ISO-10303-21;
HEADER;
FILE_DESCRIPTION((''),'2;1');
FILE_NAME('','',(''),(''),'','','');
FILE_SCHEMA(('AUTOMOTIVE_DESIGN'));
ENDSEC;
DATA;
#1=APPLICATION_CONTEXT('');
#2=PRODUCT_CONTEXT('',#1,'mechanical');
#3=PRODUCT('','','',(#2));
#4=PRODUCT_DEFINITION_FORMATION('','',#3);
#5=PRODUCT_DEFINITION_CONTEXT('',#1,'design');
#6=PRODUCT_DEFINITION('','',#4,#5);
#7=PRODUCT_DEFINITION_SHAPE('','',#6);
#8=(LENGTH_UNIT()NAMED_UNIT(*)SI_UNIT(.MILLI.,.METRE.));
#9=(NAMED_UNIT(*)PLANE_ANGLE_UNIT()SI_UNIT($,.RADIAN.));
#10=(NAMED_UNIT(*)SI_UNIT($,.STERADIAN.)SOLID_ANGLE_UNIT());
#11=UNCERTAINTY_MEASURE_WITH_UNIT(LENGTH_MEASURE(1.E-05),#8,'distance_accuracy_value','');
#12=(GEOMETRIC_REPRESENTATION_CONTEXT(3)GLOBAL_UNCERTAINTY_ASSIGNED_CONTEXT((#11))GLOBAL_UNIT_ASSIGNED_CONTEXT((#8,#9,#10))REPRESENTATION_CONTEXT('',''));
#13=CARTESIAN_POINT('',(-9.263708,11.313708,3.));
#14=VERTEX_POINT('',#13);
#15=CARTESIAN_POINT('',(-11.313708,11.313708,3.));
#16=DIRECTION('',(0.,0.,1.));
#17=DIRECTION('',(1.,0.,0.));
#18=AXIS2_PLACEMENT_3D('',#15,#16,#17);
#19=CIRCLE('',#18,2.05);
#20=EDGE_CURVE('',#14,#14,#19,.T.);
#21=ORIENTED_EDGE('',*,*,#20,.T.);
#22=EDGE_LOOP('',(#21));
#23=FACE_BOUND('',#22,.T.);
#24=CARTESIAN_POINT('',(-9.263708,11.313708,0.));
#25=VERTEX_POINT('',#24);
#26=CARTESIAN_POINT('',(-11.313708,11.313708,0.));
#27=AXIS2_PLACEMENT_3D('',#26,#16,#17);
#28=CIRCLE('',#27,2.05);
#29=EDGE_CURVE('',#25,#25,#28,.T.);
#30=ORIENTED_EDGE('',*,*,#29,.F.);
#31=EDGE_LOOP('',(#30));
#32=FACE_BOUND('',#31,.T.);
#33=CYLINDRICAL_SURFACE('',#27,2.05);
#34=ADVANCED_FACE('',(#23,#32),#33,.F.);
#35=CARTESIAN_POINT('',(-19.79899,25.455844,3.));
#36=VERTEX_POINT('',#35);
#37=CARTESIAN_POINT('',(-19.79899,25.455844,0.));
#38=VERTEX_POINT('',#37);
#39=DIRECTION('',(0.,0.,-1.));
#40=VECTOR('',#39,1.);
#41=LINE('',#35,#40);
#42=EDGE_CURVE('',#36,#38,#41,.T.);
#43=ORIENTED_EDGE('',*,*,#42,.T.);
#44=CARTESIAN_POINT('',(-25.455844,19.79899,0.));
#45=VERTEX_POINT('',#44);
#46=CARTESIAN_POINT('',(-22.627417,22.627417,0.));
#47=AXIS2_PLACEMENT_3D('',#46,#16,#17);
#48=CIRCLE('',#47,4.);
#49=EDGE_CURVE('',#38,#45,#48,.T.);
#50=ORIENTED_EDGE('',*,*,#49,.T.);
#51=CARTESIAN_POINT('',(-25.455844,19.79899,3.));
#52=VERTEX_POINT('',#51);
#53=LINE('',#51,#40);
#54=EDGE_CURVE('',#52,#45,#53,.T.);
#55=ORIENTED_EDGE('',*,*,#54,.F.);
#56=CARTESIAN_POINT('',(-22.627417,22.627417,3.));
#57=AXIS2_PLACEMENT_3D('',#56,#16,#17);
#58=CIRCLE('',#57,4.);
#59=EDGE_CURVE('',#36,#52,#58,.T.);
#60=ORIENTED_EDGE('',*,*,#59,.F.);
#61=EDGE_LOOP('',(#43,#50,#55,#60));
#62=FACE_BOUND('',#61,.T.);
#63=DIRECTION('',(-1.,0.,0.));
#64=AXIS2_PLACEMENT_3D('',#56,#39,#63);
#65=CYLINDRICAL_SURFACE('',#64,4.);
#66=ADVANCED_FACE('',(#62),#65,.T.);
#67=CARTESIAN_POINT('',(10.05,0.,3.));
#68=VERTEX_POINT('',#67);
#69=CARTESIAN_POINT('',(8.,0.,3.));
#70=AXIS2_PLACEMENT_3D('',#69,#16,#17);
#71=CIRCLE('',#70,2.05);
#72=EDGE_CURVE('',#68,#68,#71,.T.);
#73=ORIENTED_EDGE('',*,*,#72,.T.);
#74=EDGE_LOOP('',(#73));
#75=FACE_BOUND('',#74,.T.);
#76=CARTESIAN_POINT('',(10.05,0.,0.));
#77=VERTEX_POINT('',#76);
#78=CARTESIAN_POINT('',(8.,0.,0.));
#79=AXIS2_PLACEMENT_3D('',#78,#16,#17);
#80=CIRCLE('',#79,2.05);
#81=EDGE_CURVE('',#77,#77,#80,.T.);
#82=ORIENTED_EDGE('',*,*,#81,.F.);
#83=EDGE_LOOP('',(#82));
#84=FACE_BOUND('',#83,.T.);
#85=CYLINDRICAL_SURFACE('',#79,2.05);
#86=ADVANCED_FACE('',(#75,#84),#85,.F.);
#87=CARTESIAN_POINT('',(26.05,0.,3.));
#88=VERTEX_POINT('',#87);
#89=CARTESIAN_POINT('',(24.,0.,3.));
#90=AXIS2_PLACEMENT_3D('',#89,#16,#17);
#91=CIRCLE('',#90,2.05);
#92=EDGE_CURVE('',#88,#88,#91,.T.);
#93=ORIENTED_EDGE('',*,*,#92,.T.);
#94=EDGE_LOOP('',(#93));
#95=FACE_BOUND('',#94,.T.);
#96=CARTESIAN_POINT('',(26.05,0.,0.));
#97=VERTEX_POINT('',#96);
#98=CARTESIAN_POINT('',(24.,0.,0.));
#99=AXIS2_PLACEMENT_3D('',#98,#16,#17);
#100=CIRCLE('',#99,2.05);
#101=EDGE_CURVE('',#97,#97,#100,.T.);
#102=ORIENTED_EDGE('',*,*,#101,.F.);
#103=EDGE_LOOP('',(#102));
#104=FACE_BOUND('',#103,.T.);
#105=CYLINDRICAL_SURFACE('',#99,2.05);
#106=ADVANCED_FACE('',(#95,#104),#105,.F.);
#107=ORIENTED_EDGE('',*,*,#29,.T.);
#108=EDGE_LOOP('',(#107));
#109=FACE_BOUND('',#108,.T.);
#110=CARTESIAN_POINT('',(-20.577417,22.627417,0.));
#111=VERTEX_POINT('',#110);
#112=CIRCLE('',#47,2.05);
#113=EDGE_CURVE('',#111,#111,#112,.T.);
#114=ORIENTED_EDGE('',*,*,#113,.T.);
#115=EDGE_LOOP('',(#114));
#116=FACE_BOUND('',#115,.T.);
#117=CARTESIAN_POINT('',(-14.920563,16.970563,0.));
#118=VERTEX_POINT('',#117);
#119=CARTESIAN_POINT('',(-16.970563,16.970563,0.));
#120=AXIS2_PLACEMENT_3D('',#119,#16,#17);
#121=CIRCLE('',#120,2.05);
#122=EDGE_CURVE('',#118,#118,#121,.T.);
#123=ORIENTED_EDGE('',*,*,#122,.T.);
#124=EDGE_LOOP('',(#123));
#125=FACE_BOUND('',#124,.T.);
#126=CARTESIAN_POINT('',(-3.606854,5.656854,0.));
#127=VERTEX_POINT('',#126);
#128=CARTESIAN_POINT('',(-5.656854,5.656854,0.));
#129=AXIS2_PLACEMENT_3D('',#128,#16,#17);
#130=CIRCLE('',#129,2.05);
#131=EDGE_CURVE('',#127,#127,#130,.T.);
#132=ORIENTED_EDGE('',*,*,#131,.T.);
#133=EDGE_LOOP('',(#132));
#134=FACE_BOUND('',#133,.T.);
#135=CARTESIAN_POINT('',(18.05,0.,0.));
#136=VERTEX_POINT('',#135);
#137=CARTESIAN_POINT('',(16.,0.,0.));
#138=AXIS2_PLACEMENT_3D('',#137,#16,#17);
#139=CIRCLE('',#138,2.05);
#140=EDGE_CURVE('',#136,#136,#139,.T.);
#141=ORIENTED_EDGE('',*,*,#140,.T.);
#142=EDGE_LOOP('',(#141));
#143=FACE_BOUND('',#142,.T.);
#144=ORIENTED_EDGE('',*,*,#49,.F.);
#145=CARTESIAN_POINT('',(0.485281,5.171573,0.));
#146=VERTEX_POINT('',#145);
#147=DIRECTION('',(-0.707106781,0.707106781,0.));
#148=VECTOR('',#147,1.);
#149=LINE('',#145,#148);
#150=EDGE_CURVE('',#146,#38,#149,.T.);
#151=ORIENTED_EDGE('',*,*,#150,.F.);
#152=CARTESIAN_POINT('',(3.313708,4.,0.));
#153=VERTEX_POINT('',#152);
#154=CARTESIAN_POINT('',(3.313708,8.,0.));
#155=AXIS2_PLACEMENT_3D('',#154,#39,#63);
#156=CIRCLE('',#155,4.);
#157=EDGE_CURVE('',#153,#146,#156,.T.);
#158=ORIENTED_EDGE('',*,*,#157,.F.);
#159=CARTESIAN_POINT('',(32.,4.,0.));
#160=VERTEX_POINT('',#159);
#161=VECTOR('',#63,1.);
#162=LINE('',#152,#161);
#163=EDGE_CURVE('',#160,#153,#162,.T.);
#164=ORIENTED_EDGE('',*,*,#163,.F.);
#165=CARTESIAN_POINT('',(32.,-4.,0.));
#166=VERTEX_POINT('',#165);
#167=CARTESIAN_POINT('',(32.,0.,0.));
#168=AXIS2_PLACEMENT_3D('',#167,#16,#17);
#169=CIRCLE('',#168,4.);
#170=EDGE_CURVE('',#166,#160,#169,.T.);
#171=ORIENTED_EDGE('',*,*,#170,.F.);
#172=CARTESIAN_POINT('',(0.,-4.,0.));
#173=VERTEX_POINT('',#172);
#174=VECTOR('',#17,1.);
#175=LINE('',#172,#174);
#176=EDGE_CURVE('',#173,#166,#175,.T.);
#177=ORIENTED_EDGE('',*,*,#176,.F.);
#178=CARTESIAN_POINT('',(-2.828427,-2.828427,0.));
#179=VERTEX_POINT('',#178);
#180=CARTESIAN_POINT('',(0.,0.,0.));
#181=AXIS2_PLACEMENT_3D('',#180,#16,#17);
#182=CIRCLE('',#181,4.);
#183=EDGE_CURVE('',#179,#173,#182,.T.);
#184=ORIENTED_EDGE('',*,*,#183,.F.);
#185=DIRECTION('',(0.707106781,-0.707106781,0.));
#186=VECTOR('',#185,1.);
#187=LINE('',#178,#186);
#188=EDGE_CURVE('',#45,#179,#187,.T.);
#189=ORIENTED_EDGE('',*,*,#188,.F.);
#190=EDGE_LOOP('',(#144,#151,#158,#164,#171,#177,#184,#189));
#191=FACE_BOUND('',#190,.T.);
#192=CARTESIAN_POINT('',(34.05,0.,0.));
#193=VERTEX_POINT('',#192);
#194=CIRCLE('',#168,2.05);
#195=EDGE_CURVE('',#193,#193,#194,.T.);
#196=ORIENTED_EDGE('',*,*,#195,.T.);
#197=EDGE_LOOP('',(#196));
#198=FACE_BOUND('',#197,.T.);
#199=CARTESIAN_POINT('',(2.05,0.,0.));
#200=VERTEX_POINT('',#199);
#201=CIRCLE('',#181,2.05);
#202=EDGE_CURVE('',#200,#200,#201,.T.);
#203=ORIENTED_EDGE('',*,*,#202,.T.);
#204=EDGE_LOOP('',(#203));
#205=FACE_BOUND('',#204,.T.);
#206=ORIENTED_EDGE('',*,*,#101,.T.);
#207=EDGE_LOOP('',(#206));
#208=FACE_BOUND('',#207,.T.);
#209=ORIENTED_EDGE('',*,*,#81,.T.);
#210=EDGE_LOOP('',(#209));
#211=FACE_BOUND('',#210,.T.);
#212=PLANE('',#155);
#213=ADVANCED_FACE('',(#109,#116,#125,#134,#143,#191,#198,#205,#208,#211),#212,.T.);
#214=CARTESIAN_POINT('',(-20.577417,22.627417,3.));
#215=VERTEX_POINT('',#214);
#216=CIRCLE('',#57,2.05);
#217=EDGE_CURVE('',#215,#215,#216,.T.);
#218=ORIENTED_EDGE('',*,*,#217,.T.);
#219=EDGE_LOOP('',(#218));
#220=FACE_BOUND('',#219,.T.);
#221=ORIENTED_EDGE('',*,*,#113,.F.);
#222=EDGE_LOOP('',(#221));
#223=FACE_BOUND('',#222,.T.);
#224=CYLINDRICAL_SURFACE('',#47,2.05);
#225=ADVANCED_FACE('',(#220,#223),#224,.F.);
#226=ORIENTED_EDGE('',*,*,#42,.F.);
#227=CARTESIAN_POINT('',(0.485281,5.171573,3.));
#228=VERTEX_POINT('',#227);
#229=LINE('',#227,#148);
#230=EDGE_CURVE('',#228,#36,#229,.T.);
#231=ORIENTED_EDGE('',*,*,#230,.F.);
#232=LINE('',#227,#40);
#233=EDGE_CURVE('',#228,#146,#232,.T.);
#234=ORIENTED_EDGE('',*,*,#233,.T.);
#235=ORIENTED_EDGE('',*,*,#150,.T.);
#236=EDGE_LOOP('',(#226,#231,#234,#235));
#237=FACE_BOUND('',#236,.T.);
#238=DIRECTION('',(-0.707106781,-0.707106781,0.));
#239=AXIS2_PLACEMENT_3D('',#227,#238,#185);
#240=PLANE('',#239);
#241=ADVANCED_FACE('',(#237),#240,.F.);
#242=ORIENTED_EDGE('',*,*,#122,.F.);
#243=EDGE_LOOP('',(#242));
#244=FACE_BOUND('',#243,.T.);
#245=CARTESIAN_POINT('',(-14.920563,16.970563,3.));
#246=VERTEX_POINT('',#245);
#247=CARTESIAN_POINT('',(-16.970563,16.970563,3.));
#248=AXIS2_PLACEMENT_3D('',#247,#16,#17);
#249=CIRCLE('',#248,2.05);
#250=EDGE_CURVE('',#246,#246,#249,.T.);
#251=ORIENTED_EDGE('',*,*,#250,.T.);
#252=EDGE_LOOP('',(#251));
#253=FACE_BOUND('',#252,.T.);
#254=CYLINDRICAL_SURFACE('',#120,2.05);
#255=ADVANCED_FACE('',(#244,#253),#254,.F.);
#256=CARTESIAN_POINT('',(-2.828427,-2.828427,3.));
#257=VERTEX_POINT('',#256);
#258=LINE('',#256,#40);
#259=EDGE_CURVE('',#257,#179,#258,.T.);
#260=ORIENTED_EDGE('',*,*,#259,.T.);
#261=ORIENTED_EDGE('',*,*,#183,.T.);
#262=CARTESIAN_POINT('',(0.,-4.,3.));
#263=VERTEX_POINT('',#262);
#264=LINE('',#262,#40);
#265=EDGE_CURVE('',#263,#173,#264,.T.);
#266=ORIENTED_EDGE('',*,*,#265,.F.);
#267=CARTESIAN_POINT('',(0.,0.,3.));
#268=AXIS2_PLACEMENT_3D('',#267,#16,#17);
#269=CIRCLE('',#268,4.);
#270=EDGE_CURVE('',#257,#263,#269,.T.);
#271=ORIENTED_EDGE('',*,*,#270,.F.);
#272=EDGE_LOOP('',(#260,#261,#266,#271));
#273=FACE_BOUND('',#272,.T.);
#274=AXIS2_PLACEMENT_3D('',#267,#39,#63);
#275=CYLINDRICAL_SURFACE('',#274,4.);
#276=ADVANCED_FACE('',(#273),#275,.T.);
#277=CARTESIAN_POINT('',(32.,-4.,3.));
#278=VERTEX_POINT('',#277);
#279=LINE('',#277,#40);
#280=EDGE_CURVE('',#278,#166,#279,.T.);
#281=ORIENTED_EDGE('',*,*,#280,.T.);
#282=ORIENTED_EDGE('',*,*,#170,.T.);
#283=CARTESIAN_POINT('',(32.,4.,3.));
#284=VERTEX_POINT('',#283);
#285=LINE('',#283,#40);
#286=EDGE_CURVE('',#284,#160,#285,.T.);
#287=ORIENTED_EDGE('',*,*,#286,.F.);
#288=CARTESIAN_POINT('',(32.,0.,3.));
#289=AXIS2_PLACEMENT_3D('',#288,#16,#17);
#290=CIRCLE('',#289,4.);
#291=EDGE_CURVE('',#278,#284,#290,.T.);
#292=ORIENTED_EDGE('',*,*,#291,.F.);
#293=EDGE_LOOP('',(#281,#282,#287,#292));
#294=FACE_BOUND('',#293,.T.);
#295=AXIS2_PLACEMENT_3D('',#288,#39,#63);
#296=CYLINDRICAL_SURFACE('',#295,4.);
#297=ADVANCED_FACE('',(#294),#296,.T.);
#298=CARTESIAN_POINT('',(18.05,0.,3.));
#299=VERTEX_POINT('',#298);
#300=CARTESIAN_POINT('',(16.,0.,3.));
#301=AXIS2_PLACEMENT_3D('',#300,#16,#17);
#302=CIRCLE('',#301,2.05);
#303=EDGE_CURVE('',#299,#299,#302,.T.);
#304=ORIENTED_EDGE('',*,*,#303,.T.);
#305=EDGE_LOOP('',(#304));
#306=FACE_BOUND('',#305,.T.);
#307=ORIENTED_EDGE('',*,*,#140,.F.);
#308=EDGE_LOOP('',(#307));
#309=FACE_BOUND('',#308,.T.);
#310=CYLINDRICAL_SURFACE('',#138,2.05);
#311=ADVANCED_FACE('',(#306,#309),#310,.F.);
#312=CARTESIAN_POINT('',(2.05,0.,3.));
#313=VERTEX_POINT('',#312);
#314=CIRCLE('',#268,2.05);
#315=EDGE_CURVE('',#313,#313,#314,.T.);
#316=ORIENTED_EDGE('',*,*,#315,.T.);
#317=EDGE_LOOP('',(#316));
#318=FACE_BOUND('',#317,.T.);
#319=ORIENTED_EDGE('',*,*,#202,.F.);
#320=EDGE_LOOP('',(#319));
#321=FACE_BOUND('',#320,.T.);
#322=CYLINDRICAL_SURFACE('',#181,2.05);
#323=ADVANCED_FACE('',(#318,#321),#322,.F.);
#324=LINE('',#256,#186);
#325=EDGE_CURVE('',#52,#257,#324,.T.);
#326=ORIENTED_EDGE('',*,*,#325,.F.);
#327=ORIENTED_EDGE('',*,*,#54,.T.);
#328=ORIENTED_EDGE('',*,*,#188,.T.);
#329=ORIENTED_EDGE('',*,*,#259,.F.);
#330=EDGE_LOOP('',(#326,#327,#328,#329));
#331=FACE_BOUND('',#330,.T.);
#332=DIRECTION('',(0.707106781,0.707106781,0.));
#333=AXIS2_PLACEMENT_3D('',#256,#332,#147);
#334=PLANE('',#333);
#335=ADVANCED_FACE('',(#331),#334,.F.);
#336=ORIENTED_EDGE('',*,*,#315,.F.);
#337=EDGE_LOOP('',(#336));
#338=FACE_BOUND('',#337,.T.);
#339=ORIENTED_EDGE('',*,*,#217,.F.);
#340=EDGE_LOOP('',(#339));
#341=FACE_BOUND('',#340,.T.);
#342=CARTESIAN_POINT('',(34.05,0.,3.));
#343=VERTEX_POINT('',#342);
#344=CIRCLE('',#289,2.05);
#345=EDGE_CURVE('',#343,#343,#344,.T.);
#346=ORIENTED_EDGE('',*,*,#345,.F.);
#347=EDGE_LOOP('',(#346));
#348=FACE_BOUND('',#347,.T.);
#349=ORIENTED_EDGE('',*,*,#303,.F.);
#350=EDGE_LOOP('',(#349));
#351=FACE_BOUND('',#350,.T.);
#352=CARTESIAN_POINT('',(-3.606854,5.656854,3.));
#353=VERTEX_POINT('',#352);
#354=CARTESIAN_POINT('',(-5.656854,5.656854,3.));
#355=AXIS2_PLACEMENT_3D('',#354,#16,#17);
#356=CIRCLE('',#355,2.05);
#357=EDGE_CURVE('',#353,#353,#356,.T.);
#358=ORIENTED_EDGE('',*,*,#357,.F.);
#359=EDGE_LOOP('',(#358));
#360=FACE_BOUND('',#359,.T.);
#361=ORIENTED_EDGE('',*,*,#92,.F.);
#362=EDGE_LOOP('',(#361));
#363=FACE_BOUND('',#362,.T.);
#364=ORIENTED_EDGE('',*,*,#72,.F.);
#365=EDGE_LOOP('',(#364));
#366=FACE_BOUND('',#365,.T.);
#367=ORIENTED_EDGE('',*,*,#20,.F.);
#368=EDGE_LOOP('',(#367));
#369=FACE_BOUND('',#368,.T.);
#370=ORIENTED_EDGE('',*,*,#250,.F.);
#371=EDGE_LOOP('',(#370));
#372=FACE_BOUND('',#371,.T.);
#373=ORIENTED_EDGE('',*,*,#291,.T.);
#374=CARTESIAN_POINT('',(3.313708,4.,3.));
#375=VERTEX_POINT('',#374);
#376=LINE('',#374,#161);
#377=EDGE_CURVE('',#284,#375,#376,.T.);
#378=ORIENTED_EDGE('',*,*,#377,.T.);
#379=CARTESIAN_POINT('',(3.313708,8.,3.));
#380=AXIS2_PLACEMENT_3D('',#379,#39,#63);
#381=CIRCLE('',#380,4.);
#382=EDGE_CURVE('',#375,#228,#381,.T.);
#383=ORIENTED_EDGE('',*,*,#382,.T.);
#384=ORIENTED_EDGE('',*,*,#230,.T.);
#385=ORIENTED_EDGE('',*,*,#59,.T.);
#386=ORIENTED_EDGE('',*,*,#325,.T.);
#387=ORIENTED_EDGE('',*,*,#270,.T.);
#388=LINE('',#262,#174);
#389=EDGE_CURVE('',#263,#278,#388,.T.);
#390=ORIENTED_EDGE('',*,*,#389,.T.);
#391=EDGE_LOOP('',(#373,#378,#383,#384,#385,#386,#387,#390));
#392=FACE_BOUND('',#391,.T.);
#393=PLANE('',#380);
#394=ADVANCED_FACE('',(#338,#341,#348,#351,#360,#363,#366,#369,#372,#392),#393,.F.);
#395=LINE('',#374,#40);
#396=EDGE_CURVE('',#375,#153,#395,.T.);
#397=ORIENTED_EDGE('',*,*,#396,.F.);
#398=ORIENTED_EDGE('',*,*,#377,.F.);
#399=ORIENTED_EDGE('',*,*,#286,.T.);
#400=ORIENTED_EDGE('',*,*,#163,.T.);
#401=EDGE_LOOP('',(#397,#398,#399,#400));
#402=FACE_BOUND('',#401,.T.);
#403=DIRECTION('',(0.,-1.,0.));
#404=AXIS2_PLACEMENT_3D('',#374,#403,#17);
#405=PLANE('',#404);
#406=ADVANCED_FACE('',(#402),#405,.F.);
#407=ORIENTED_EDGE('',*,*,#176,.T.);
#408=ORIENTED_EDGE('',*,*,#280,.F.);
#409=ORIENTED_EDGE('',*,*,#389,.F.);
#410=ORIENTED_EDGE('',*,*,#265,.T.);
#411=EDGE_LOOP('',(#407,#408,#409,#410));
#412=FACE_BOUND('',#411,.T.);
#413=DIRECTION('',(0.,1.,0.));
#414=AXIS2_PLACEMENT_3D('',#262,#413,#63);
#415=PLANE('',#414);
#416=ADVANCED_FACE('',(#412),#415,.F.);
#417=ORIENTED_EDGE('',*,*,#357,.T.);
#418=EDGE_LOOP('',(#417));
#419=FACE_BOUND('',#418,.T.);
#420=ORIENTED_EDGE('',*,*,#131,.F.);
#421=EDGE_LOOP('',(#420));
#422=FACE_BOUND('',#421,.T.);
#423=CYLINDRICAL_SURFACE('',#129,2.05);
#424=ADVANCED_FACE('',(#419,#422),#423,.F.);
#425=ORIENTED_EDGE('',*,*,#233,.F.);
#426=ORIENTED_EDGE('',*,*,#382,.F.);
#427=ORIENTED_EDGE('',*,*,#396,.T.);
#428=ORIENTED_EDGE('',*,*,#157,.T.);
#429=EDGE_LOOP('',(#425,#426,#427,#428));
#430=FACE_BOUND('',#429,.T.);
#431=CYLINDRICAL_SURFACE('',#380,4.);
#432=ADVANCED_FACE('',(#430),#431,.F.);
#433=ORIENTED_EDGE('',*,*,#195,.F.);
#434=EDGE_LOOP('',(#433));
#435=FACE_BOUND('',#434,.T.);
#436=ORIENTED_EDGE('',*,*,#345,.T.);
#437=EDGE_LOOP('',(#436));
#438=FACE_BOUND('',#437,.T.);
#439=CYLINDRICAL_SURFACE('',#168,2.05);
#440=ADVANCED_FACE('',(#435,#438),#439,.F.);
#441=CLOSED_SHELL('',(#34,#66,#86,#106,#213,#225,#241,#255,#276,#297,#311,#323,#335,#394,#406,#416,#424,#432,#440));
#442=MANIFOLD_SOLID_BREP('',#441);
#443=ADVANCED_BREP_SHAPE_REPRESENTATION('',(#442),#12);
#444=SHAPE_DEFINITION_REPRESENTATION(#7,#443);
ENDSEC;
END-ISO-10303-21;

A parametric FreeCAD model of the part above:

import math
import FreeCAD as App
import Part
import Sketcher
from FreeCAD import Vector
Q = App.Units.Quantity

doc = App.newDocument("Part")
body = doc.addObject("PartDesign::Body", "Body")

# Sketch on XY plane
sketch1 = body.newObject("Sketcher::SketchObject", "Sketch")
sketch1.AttachmentSupport = (doc.getObject("XY_Plane"), [""])
sketch1.MapMode = "FlatFace"
sketch1.addGeometry([
    Part.LineSegment(Vector(32, 4, 0), Vector(3.3, 4, 0)),  # 0
    Part.ArcOfCircle(Part.Circle(Vector(3.3, 8, 0), Vector(0, 0, 1), 4), math.radians(-135), math.radians(-90)),  # 1
    Part.LineSegment(Vector(0.5, 5.2, 0), Vector(-19.8, 25.5, 0)),  # 2
    Part.ArcOfCircle(Part.Circle(Vector(-22.6, 22.6, 0), Vector(0, 0, 1), 4), math.radians(45), math.radians(225)),  # 3
    Part.LineSegment(Vector(-25.5, 19.8, 0), Vector(-2.8, -2.8, 0)),  # 4
    Part.ArcOfCircle(Part.Circle(Vector(0, 0, 0), Vector(0, 0, 1), 4), math.radians(-135), math.radians(-90)),  # 5
    Part.LineSegment(Vector(0, -4, 0), Vector(32, -4, 0)),  # 6
    Part.ArcOfCircle(Part.Circle(Vector(32, 0, 0), Vector(0, 0, 1), 4), math.radians(-90), math.radians(90)),  # 7
], False)
sketch1.addConstraint([
    Sketcher.Constraint("Tangent", 0, 2, 1, 2),
    Sketcher.Constraint("Tangent", 1, 1, 2, 1),
    Sketcher.Constraint("Tangent", 2, 2, 3, 1),
    Sketcher.Constraint("Tangent", 3, 2, 4, 1),
    Sketcher.Constraint("Tangent", 4, 2, 5, 1),
    Sketcher.Constraint("Tangent", 5, 2, 6, 1),
    Sketcher.Constraint("Tangent", 6, 2, 7, 1),
    Sketcher.Constraint("Tangent", 7, 2, 0, 1),
    Sketcher.Constraint("Horizontal", 0),
    Sketcher.Constraint("Horizontal", 6),
    Sketcher.Constraint("Coincident", 5, 3, -1, 1),
    Sketcher.Constraint("Equal", 1, 3),
    Sketcher.Constraint("Equal", 3, 5),
    Sketcher.Constraint("Equal", 5, 7),
    Sketcher.Constraint("Parallel", 2, 4),
    Sketcher.Constraint("Radius", 1, Q("4 mm")),
    Sketcher.Constraint("DistanceX", 6, 1, 6, 2, Q("32 mm")),
    Sketcher.Constraint("Angle", 2, Q("135 deg")),
    Sketcher.Constraint("Distance", 4, Q("32 mm")),
])
pad1 = body.newObject("PartDesign::Pad", "Pad")
pad1.Profile = sketch1
pad1.Length = 3

# Sketch on XY plane
sketch2 = body.newObject("Sketcher::SketchObject", "Sketch001")
sketch2.AttachmentSupport = (doc.getObject("XY_Plane"), [""])
sketch2.MapMode = "FlatFace"
sketch2.AttachmentOffset = App.Placement(Vector(0, 0, 3), App.Rotation())
sketch2.addGeometry(Part.Circle(Vector(-22.6, 22.6, 0), Vector(0, 0, 1), 2), False)
sketch2.addConstraint([
    Sketcher.Constraint("Diameter", 0, Q("4.1 mm")),
    Sketcher.Constraint("DistanceX", 0, 3, -1, 1, Q("22.627417 mm")),
    Sketcher.Constraint("DistanceY", -1, 1, 0, 3, Q("22.627417 mm")),
])
pocket1 = body.newObject("PartDesign::Pocket", "Pocket")
pocket1.Profile = sketch2
pocket1.Type = "ThroughAll"
doc.recompute()

datumline = body.newObject("PartDesign::Line", "DatumLine")
datumline.Placement = App.Placement(Vector(0, 0, 0), App.Rotation(Vector(0, 0, 1), Vector(0.707106781, -0.707106781, 0)))
linearpattern = body.newObject("PartDesign::LinearPattern", "LinearPattern")
linearpattern.Originals = [pocket1]
linearpattern.Direction = (datumline, [""])
linearpattern.Mode = "offset"
linearpattern.Offset = 8
linearpattern.Occurrences = 5
body.Tip = linearpattern

# Sketch on XY plane
sketch3 = body.newObject("Sketcher::SketchObject", "Sketch002")
sketch3.AttachmentSupport = (doc.getObject("XY_Plane"), [""])
sketch3.MapMode = "FlatFace"
sketch3.AttachmentOffset = App.Placement(Vector(0, 0, 3), App.Rotation())
sketch3.addGeometry(Part.Circle(Vector(32, 0, 0), Vector(0, 0, 1), 2), False)
sketch3.addConstraint([
    Sketcher.Constraint("PointOnObject", 0, 3, -1),
    Sketcher.Constraint("Diameter", 0, Q("4.1 mm")),
    Sketcher.Constraint("DistanceX", -1, 1, 0, 3, Q("32 mm")),
])
pocket2 = body.newObject("PartDesign::Pocket", "Pocket001")
pocket2.Profile = sketch3
pocket2.Type = "ThroughAll"
doc.recompute()

linearpattern2 = body.newObject("PartDesign::LinearPattern", "LinearPattern001")
linearpattern2.Originals = [pocket2]
linearpattern2.Direction = (doc.getObject("X_Axis"), [""])
linearpattern2.Mode = "offset"
linearpattern2.Offset = 8
linearpattern2.Occurrences = 5
linearpattern2.Reversed = True
body.Tip = linearpattern2

doc.recompute()
